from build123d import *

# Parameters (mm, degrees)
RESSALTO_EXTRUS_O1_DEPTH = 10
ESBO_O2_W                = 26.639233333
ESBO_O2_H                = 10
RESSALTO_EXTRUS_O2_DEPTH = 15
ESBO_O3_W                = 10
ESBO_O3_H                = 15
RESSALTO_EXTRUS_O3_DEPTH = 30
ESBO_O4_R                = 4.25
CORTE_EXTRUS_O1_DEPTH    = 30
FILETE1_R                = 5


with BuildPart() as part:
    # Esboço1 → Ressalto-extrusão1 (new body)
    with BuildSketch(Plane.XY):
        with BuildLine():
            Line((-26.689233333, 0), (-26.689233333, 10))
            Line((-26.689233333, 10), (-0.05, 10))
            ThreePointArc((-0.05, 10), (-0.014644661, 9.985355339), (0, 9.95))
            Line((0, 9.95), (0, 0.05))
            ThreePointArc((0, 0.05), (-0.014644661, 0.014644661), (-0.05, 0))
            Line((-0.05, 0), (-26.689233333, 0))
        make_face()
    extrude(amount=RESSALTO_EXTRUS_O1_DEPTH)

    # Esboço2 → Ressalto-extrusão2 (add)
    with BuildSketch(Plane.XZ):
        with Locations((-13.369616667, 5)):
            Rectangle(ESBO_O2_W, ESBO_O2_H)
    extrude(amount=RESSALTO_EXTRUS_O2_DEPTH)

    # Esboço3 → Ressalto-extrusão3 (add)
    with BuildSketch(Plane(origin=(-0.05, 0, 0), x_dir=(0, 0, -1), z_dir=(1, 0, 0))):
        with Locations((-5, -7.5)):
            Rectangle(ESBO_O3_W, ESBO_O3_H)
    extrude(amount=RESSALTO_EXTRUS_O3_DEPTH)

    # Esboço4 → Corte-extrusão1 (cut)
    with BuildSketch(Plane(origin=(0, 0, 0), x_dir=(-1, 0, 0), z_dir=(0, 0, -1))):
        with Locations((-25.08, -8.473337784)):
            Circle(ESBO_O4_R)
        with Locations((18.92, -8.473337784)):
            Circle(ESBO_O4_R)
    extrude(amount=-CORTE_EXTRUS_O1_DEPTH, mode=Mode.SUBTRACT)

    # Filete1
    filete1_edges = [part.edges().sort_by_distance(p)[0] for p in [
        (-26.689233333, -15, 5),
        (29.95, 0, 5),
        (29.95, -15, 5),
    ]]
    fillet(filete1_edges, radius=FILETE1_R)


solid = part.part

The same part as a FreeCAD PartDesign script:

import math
import FreeCAD as App
import Part
import Sketcher

V = App.Vector


def edges_at(feature, points):
    """Names of the edges that pass closest to the given points."""
    edges = feature.Shape.Edges
    near = lambda p: min(range(len(edges)), key=lambda i: edges[i].distToShape(Part.Vertex(*p))[0])
    return sorted({f"Edge{near(p) + 1}" for p in points})


def add_polygon(sketch, points):
    """Adds a closed chain of lines whose ends are joined by coincident constraints."""
    first, n = sketch.GeometryCount, len(points)
    for a, b in zip(points, points[1:] + points[:1]):
        sketch.addGeometry(Part.LineSegment(App.Vector(*a, 0), App.Vector(*b, 0)), False)
    for i in range(n):
        sketch.addConstraint(Sketcher.Constraint("Coincident", first + i, 2, first + (i + 1) % n, 1))

doc = App.newDocument("Part")
body = doc.addObject("PartDesign::Body", "Body")

sketch1 = body.newObject("Sketcher::SketchObject", "Sketch")
sketch1.AttachmentSupport = (doc.getObject("XY_Plane"), [""])
sketch1.MapMode = "FlatFace"
sketch1.addGeometry(Part.LineSegment(V(-26.69, 10, 0), V(-26.69, 0, 0)), False)
sketch1.addGeometry(Part.LineSegment(V(-26.69, 0, 0), V(-0.05, 0, 0)), False)
sketch1.addGeometry(Part.ArcOfCircle(Part.Circle(V(-0.05, 0.05, 0), V(0, 0, 1), 0.05), math.radians(-90), math.radians(0)), False)
sketch1.addGeometry(Part.LineSegment(V(0, 0.05, 0), V(0, 9.95, 0)), False)
sketch1.addGeometry(Part.ArcOfCircle(Part.Circle(V(-0.05, 9.95, 0), V(0, 0, 1), 0.05), math.radians(0), math.radians(90)), False)
sketch1.addGeometry(Part.LineSegment(V(-0.05, 10, 0), V(-26.69, 10, 0)), False)
sketch1.addConstraint(Sketcher.Constraint("Coincident", 0, 2, 1, 1))
sketch1.addConstraint(Sketcher.Constraint("Tangent", 1, 2, 2, 1))
sketch1.addConstraint(Sketcher.Constraint("Tangent", 2, 2, 3, 1))
sketch1.addConstraint(Sketcher.Constraint("Tangent", 3, 2, 4, 1))
sketch1.addConstraint(Sketcher.Constraint("Tangent", 4, 2, 5, 1))
sketch1.addConstraint(Sketcher.Constraint("Coincident", 5, 2, 0, 1))
sketch1.addConstraint(Sketcher.Constraint("Vertical", 0))
sketch1.addConstraint(Sketcher.Constraint("Horizontal", 1))
sketch1.addConstraint(Sketcher.Constraint("Vertical", 3))
sketch1.addConstraint(Sketcher.Constraint("Horizontal", 5))
sketch1.addConstraint(Sketcher.Constraint("Equal", 2, 4))
sketch1.addConstraint(Sketcher.Constraint("PointOnObject", 0, 2, -1))
sketch1.addConstraint(Sketcher.Constraint("PointOnObject", 2, 2, -2))
sketch1.addConstraint(Sketcher.Constraint("DistanceY", 0, 2, 0, 1, 10.0))
sketch1.addConstraint(Sketcher.Constraint("Radius", 2, 0.05))
sketch1.addConstraint(Sketcher.Constraint("DistanceX", 1, 1, 1, 2, 26.639233))
pad1 = body.newObject("PartDesign::Pad", "Pad")
pad1.Profile = sketch1
pad1.Length = 10

sketch2 = body.newObject("Sketcher::SketchObject", "Sketch001")
sketch2.AttachmentSupport = (doc.getObject("XZ_Plane"), [""])
sketch2.MapMode = "FlatFace"
add_polygon(sketch2, [(-27, 10), (-27, 0), (0, 0), (0, 10)])
sketch2.addConstraint(Sketcher.Constraint("Vertical", 0))
sketch2.addConstraint(Sketcher.Constraint("Horizontal", 1))
sketch2.addConstraint(Sketcher.Constraint("Vertical", 2))
sketch2.addConstraint(Sketcher.Constraint("Horizontal", 3))
sketch2.addConstraint(Sketcher.Constraint("PointOnObject", 0, 2, -1))
sketch2.addConstraint(Sketcher.Constraint("DistanceY", 0, 2, 0, 1, 10.0))
sketch2.addConstraint(Sketcher.Constraint("DistanceX", 1, 2, -1, 1, 0.05))
sketch2.addConstraint(Sketcher.Constraint("DistanceX", 1, 1, 1, 2, 26.639233))
pad2 = body.newObject("PartDesign::Pad", "Pad001")
pad2.Profile = sketch2
pad2.Length = 15

sketch3 = body.newObject("Sketcher::SketchObject", "Sketch002")
sketch3.AttachmentSupport = (doc.getObject("YZ_Plane"), [""])
sketch3.MapMode = "FlatFace"
sketch3.AttachmentOffset = App.Placement(V(0, 0, -0.05), App.Rotation())
add_polygon(sketch3, [(0, 10), (-15, 10), (-15, 0), (0, 0)])
sketch3.addConstraint(Sketcher.Constraint("Horizontal", 0))
sketch3.addConstraint(Sketcher.Constraint("Vertical", 1))
sketch3.addConstraint(Sketcher.Constraint("Horizontal", 2))
sketch3.addConstraint(Sketcher.Constraint("Vertical", 3))
sketch3.addConstraint(Sketcher.Constraint("Coincident", 2, 2, -1, 1))
sketch3.addConstraint(Sketcher.Constraint("DistanceX", 0, 2, 0, 1, 15.0))
sketch3.addConstraint(Sketcher.Constraint("DistanceY", 1, 2, 1, 1, 10.0))
pad3 = body.newObject("PartDesign::Pad", "Pad002")
pad3.Profile = sketch3
pad3.Length = 30

sketch4 = body.newObject("Sketcher::SketchObject", "Sketch003")
sketch4.AttachmentSupport = (doc.getObject("XY_Plane"), [""])
sketch4.MapMode = "FlatFace"
sketch4.addGeometry(Part.Circle(V(25.1, -8.5, 0), V(0, 0, 1), 4.2), False)
sketch4.addGeometry(Part.Circle(V(-18.9, -8.5, 0), V(0, 0, 1), 4.2), False)
sketch4.addConstraint(Sketcher.Constraint("Equal", 0, 1))
sketch4.addConstraint(Sketcher.Constraint("Horizontal", 0, 3, 1, 3))
sketch4.addConstraint(Sketcher.Constraint("Diameter", 0, 8.5))
sketch4.addConstraint(Sketcher.Constraint("DistanceX", 1, 3, 0, 3, 44.0))
sketch4.addConstraint(Sketcher.Constraint("DistanceX", -1, 1, 0, 3, 25.08))
sketch4.addConstraint(Sketcher.Constraint("DistanceY", 0, 3, -1, 1, 8.473338))
pocket1 = body.newObject("PartDesign::Pocket", "Pocket")
pocket1.Profile = sketch4
pocket1.Length = 30
pocket1.Reversed = True
doc.recompute()

fillet = body.newObject("PartDesign::Fillet", "Fillet")
fillet.Base = (pocket1, edges_at(pocket1, [(-26.689, -15, 5), (29.95, 0, 5), (29.95, -15, 5)]))
fillet.Radius = 5

doc.recompute()
